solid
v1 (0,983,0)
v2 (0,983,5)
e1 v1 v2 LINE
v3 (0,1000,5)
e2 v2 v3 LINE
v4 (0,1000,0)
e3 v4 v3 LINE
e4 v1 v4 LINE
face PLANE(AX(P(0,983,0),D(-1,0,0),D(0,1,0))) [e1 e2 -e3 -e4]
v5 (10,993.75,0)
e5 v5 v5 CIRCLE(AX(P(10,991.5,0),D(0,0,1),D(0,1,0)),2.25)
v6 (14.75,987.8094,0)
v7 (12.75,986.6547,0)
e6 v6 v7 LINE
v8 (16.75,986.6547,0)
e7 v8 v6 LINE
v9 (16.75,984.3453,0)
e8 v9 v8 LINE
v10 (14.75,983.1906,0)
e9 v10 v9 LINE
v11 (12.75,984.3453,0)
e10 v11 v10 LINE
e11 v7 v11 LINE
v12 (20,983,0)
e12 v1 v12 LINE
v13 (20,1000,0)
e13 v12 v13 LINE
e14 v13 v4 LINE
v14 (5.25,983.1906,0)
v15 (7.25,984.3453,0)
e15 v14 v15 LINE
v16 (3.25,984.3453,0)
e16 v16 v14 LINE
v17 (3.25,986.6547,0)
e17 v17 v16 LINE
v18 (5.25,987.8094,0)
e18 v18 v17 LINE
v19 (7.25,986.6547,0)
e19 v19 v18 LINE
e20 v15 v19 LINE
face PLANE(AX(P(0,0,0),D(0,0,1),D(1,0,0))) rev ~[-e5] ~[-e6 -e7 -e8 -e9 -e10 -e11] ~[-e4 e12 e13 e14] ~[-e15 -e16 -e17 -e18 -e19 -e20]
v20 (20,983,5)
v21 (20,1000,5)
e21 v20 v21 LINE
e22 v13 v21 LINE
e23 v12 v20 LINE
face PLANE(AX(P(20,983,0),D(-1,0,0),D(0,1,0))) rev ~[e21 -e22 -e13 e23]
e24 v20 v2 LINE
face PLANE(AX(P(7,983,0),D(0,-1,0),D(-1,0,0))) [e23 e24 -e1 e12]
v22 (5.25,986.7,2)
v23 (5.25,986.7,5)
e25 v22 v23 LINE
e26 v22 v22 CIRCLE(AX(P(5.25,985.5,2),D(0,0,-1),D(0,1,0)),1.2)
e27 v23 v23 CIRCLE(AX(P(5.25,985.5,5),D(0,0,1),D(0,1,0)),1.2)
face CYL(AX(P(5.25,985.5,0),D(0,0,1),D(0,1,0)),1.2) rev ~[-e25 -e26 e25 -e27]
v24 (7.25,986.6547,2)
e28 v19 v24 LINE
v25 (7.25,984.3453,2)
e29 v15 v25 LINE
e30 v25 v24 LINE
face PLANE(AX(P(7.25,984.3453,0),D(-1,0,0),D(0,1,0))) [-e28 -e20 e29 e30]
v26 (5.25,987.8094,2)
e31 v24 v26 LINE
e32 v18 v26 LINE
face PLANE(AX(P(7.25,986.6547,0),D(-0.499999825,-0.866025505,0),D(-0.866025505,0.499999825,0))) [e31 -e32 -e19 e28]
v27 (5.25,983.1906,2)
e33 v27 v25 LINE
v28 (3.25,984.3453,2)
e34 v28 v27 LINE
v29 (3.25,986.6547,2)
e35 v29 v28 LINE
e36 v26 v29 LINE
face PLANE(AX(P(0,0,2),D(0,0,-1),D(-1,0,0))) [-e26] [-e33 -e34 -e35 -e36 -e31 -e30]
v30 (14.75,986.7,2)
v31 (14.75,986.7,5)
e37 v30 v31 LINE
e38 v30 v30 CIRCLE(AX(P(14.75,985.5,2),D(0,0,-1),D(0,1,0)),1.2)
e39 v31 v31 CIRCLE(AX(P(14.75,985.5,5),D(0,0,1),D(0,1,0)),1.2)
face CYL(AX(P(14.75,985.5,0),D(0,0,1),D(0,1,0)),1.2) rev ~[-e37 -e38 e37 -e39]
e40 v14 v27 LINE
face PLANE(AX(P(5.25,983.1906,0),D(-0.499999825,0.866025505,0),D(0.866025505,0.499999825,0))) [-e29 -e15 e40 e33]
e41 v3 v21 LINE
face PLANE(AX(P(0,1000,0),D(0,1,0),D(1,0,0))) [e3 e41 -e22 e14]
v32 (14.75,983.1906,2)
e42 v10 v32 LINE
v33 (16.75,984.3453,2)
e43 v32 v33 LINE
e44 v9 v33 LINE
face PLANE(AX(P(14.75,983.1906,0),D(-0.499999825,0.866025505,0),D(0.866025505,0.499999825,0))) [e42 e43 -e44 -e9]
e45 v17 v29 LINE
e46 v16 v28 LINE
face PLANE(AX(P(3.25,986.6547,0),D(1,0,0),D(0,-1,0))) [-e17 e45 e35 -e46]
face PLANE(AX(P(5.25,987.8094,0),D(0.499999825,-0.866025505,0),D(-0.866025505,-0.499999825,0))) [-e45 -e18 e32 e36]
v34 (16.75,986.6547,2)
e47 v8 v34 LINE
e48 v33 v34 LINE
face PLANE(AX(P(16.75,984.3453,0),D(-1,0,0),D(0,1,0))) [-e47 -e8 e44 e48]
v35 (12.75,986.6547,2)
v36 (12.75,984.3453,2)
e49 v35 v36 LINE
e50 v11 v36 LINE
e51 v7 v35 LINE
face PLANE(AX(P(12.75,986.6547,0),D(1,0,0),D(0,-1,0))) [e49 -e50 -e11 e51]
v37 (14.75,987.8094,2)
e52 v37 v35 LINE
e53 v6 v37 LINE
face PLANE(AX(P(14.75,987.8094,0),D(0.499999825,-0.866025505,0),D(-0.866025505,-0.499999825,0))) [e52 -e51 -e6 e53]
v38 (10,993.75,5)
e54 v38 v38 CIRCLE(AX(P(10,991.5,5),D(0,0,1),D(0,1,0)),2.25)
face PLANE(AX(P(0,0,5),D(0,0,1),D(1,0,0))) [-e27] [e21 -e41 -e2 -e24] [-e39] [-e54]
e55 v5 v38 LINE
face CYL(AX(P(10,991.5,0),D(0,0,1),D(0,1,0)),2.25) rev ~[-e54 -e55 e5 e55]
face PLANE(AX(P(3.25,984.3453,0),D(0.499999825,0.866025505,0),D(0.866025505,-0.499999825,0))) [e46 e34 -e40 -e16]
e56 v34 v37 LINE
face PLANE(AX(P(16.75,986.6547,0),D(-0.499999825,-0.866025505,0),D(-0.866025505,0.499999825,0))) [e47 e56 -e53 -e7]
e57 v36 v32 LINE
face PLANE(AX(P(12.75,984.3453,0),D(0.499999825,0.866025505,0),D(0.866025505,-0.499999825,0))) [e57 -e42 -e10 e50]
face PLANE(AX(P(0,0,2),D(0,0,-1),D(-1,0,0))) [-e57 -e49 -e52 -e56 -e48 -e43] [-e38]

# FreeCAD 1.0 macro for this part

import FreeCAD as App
import Part
import Sketcher
Q = App.Units.Quantity


def add_polygon(sketch, points):
    """Adds a closed chain of lines whose ends are joined by coincident constraints."""
    first, n = sketch.GeometryCount, len(points)
    for a, b in zip(points, points[1:] + points[:1]):
        sketch.addGeometry(Part.LineSegment(App.Vector(*a, 0), App.Vector(*b, 0)), False)
    for i in range(n):
        sketch.addConstraint(Sketcher.Constraint("Coincident", first + i, 2, first + (i + 1) % n, 1))

doc = App.newDocument("Part")
body = doc.addObject("PartDesign::Body", "Body")

# Sketch on XY plane
sketch1 = doc.addObject("Sketcher::SketchObject", "Sketch")
body.addObject(sketch1)
sketch1.AttachmentSupport = (doc.XY_Plane, [""])
sketch1.MapMode = "FlatFace"
add_polygon(sketch1, [(0, 1000), (0, 983), (20, 983), (20, 1000)])  # lines 0-3
sketch1.addConstraint([
    Sketcher.Constraint("Vertical", 0),
    Sketcher.Constraint("Horizontal", 1),
    Sketcher.Constraint("Vertical", 2),
    Sketcher.Constraint("Horizontal", 3),
    Sketcher.Constraint("PointOnObject", 0, 2, -2),
    Sketcher.Constraint("DistanceY", 0, 2, 0, 1, Q("17 mm")),
    Sketcher.Constraint("DistanceX", 1, 1, 1, 2, Q("20 mm")),
    Sketcher.Constraint("DistanceY", -1, 1, 0, 2, Q("983 mm")),
])
pad1 = doc.addObject("PartDesign::Pad", "Pad")
body.addObject(pad1)
pad1.Profile = sketch1
pad1.Length = 5

# Sketch on XY plane
sketch2 = doc.addObject("Sketcher::SketchObject", "Sketch001")
body.addObject(sketch2)
sketch2.AttachmentSupport = (doc.XY_Plane, [""])
sketch2.MapMode = "FlatFace"
sketch2.addGeometry([
    Part.Circle(App.Vector(5.2, 985.5, 0), App.Vector(0, 0, 1), 1.2),
    Part.Circle(App.Vector(14.8, 985.5, 0), App.Vector(0, 0, 1), 1.2),
], False)
sketch2.addConstraint([
    Sketcher.Constraint("Equal", 0, 1),
    Sketcher.Constraint("Horizontal", 0, 3, 1, 3),
    Sketcher.Constraint("Diameter", 0, Q("2.4 mm")),
    Sketcher.Constraint("DistanceY", -1, 1, 0, 3, Q("985.5 mm")),
    Sketcher.Constraint("DistanceX", 0, 3, 1, 3, Q("9.5 mm")),
    Sketcher.Constraint("DistanceX", -1, 1, 0, 3, Q("5.25 mm")),
])
doc.recompute()
hole = doc.addObject("PartDesign::Hole", "Hole")
body.addObject(hole)
hole.Profile = sketch2
hole.ThreadType = "None"
hole.Diameter = 2.4
hole.DepthType = "ThroughAll"
hole.Reversed = True

# Sketch on XY plane
sketch3 = doc.addObject("Sketcher::SketchObject", "Sketch002")
body.addObject(sketch3)
sketch3.AttachmentSupport = (doc.XY_Plane, [""])
sketch3.MapMode = "FlatFace"
sketch3.addGeometry(Part.Circle(App.Vector(10, 991.5, 0), App.Vector(0, 0, 1), 2.2), False)
sketch3.addConstraint([
    Sketcher.Constraint("Diameter", 0, Q("4.5 mm")),
    Sketcher.Constraint("DistanceX", -1, 1, 0, 3, Q("10 mm")),
    Sketcher.Constraint("DistanceY", -1, 1, 0, 3, Q("991.5 mm")),
])
doc.recompute()
hole2 = doc.addObject("PartDesign::Hole", "Hole001")
body.addObject(hole2)
hole2.Profile = sketch3
hole2.ThreadType = "None"
hole2.Diameter = 4.5
hole2.DepthType = "ThroughAll"
hole2.Reversed = True

# Sketch on XY plane
sketch4 = doc.addObject("Sketcher::SketchObject", "Sketch003")
body.addObject(sketch4)
sketch4.AttachmentSupport = (doc.XY_Plane, [""])
sketch4.MapMode = "FlatFace"
add_polygon(sketch4, [(14.8, 983.2), (12.8, 984.3), (12.8, 986.7), (14.8, 987.8), (16.8, 986.7), (16.8, 984.3)])  # lines 0-5
sketch4.addGeometry(Part.Circle(App.Vector(14.8, 985.5, 0), App.Vector(0, 0, 1), 1.2), False)  # 6
add_polygon(sketch4, [(7.2, 986.7), (7.2, 984.3), (5.2, 983.2), (3.2, 984.3), (3.2, 986.7), (5.2, 987.8)])  # lines 7-12
sketch4.addGeometry(Part.Circle(App.Vector(5.2, 985.5, 0), App.Vector(0, 0, 1), 1.2), False)  # 13
sketch4.addConstraint([
    Sketcher.Constraint("Vertical", 1),
    Sketcher.Constraint("Vertical", 4),
    Sketcher.Constraint("Vertical", 7),
    Sketcher.Constraint("Vertical", 10),
    Sketcher.Constraint("Equal", 6, 13),
    Sketcher.Constraint("Parallel", 0, 3),
    Sketcher.Constraint("Parallel", 2, 5),
    Sketcher.Constraint("Parallel", 5, 8),
    Sketcher.Constraint("Parallel", 3, 9),
    Sketcher.Constraint("Parallel", 8, 11),
    Sketcher.Constraint("Parallel", 9, 12),
    Sketcher.Constraint("Horizontal", 6, 3, 13, 3),
    Sketcher.Constraint("Horizontal", 1, 2, 3, 2),
    Sketcher.Constraint("Horizontal", 0, 2, 4, 2),
    Sketcher.Constraint("Horizontal", 4, 2, 7, 2),
    Sketcher.Constraint("Horizontal", 5, 2, 8, 2),
    Sketcher.Constraint("Horizontal", 7, 2, 9, 2),
    Sketcher.Constraint("Horizontal", 3, 2, 10, 2),
    Sketcher.Constraint("Horizontal", 2, 2, 11, 2),
    Sketcher.Constraint("Vertical", 6, 3, 2, 2),
    Sketcher.Constraint("Vertical", 2, 2, 5, 2),
    Sketcher.Constraint("Vertical", 13, 3, 8, 2),
    Sketcher.Constraint("DistanceX", 1, 2, 3, 2, Q("4 mm")),
    Sketcher.Constraint("Diameter", 6, Q("2.4 mm")),
    Sketcher.Constraint("Angle", 0, Q("150 deg")),
    Sketcher.Constraint("DistanceY", -1, 1, 6, 3, Q("985.5 mm")),
    Sketcher.Constraint("DistanceX", 13, 3, 6, 3, Q("9.5 mm")),
    Sketcher.Constraint("DistanceX", -1, 1, 6, 3, Q("14.75 mm")),
    Sketcher.Constraint("DistanceY", 1, 1, 1, 2, Q("2.3094 mm")),
    Sketcher.Constraint("DistanceY", -1, 1, 0, 2, Q("984.3453 mm")),
])
pocket1 = doc.addObject("PartDesign::Pocket", "Pocket")
body.addObject(pocket1)
pocket1.Profile = sketch4
pocket1.Length = 2
pocket1.Reversed = True

doc.recompute()
